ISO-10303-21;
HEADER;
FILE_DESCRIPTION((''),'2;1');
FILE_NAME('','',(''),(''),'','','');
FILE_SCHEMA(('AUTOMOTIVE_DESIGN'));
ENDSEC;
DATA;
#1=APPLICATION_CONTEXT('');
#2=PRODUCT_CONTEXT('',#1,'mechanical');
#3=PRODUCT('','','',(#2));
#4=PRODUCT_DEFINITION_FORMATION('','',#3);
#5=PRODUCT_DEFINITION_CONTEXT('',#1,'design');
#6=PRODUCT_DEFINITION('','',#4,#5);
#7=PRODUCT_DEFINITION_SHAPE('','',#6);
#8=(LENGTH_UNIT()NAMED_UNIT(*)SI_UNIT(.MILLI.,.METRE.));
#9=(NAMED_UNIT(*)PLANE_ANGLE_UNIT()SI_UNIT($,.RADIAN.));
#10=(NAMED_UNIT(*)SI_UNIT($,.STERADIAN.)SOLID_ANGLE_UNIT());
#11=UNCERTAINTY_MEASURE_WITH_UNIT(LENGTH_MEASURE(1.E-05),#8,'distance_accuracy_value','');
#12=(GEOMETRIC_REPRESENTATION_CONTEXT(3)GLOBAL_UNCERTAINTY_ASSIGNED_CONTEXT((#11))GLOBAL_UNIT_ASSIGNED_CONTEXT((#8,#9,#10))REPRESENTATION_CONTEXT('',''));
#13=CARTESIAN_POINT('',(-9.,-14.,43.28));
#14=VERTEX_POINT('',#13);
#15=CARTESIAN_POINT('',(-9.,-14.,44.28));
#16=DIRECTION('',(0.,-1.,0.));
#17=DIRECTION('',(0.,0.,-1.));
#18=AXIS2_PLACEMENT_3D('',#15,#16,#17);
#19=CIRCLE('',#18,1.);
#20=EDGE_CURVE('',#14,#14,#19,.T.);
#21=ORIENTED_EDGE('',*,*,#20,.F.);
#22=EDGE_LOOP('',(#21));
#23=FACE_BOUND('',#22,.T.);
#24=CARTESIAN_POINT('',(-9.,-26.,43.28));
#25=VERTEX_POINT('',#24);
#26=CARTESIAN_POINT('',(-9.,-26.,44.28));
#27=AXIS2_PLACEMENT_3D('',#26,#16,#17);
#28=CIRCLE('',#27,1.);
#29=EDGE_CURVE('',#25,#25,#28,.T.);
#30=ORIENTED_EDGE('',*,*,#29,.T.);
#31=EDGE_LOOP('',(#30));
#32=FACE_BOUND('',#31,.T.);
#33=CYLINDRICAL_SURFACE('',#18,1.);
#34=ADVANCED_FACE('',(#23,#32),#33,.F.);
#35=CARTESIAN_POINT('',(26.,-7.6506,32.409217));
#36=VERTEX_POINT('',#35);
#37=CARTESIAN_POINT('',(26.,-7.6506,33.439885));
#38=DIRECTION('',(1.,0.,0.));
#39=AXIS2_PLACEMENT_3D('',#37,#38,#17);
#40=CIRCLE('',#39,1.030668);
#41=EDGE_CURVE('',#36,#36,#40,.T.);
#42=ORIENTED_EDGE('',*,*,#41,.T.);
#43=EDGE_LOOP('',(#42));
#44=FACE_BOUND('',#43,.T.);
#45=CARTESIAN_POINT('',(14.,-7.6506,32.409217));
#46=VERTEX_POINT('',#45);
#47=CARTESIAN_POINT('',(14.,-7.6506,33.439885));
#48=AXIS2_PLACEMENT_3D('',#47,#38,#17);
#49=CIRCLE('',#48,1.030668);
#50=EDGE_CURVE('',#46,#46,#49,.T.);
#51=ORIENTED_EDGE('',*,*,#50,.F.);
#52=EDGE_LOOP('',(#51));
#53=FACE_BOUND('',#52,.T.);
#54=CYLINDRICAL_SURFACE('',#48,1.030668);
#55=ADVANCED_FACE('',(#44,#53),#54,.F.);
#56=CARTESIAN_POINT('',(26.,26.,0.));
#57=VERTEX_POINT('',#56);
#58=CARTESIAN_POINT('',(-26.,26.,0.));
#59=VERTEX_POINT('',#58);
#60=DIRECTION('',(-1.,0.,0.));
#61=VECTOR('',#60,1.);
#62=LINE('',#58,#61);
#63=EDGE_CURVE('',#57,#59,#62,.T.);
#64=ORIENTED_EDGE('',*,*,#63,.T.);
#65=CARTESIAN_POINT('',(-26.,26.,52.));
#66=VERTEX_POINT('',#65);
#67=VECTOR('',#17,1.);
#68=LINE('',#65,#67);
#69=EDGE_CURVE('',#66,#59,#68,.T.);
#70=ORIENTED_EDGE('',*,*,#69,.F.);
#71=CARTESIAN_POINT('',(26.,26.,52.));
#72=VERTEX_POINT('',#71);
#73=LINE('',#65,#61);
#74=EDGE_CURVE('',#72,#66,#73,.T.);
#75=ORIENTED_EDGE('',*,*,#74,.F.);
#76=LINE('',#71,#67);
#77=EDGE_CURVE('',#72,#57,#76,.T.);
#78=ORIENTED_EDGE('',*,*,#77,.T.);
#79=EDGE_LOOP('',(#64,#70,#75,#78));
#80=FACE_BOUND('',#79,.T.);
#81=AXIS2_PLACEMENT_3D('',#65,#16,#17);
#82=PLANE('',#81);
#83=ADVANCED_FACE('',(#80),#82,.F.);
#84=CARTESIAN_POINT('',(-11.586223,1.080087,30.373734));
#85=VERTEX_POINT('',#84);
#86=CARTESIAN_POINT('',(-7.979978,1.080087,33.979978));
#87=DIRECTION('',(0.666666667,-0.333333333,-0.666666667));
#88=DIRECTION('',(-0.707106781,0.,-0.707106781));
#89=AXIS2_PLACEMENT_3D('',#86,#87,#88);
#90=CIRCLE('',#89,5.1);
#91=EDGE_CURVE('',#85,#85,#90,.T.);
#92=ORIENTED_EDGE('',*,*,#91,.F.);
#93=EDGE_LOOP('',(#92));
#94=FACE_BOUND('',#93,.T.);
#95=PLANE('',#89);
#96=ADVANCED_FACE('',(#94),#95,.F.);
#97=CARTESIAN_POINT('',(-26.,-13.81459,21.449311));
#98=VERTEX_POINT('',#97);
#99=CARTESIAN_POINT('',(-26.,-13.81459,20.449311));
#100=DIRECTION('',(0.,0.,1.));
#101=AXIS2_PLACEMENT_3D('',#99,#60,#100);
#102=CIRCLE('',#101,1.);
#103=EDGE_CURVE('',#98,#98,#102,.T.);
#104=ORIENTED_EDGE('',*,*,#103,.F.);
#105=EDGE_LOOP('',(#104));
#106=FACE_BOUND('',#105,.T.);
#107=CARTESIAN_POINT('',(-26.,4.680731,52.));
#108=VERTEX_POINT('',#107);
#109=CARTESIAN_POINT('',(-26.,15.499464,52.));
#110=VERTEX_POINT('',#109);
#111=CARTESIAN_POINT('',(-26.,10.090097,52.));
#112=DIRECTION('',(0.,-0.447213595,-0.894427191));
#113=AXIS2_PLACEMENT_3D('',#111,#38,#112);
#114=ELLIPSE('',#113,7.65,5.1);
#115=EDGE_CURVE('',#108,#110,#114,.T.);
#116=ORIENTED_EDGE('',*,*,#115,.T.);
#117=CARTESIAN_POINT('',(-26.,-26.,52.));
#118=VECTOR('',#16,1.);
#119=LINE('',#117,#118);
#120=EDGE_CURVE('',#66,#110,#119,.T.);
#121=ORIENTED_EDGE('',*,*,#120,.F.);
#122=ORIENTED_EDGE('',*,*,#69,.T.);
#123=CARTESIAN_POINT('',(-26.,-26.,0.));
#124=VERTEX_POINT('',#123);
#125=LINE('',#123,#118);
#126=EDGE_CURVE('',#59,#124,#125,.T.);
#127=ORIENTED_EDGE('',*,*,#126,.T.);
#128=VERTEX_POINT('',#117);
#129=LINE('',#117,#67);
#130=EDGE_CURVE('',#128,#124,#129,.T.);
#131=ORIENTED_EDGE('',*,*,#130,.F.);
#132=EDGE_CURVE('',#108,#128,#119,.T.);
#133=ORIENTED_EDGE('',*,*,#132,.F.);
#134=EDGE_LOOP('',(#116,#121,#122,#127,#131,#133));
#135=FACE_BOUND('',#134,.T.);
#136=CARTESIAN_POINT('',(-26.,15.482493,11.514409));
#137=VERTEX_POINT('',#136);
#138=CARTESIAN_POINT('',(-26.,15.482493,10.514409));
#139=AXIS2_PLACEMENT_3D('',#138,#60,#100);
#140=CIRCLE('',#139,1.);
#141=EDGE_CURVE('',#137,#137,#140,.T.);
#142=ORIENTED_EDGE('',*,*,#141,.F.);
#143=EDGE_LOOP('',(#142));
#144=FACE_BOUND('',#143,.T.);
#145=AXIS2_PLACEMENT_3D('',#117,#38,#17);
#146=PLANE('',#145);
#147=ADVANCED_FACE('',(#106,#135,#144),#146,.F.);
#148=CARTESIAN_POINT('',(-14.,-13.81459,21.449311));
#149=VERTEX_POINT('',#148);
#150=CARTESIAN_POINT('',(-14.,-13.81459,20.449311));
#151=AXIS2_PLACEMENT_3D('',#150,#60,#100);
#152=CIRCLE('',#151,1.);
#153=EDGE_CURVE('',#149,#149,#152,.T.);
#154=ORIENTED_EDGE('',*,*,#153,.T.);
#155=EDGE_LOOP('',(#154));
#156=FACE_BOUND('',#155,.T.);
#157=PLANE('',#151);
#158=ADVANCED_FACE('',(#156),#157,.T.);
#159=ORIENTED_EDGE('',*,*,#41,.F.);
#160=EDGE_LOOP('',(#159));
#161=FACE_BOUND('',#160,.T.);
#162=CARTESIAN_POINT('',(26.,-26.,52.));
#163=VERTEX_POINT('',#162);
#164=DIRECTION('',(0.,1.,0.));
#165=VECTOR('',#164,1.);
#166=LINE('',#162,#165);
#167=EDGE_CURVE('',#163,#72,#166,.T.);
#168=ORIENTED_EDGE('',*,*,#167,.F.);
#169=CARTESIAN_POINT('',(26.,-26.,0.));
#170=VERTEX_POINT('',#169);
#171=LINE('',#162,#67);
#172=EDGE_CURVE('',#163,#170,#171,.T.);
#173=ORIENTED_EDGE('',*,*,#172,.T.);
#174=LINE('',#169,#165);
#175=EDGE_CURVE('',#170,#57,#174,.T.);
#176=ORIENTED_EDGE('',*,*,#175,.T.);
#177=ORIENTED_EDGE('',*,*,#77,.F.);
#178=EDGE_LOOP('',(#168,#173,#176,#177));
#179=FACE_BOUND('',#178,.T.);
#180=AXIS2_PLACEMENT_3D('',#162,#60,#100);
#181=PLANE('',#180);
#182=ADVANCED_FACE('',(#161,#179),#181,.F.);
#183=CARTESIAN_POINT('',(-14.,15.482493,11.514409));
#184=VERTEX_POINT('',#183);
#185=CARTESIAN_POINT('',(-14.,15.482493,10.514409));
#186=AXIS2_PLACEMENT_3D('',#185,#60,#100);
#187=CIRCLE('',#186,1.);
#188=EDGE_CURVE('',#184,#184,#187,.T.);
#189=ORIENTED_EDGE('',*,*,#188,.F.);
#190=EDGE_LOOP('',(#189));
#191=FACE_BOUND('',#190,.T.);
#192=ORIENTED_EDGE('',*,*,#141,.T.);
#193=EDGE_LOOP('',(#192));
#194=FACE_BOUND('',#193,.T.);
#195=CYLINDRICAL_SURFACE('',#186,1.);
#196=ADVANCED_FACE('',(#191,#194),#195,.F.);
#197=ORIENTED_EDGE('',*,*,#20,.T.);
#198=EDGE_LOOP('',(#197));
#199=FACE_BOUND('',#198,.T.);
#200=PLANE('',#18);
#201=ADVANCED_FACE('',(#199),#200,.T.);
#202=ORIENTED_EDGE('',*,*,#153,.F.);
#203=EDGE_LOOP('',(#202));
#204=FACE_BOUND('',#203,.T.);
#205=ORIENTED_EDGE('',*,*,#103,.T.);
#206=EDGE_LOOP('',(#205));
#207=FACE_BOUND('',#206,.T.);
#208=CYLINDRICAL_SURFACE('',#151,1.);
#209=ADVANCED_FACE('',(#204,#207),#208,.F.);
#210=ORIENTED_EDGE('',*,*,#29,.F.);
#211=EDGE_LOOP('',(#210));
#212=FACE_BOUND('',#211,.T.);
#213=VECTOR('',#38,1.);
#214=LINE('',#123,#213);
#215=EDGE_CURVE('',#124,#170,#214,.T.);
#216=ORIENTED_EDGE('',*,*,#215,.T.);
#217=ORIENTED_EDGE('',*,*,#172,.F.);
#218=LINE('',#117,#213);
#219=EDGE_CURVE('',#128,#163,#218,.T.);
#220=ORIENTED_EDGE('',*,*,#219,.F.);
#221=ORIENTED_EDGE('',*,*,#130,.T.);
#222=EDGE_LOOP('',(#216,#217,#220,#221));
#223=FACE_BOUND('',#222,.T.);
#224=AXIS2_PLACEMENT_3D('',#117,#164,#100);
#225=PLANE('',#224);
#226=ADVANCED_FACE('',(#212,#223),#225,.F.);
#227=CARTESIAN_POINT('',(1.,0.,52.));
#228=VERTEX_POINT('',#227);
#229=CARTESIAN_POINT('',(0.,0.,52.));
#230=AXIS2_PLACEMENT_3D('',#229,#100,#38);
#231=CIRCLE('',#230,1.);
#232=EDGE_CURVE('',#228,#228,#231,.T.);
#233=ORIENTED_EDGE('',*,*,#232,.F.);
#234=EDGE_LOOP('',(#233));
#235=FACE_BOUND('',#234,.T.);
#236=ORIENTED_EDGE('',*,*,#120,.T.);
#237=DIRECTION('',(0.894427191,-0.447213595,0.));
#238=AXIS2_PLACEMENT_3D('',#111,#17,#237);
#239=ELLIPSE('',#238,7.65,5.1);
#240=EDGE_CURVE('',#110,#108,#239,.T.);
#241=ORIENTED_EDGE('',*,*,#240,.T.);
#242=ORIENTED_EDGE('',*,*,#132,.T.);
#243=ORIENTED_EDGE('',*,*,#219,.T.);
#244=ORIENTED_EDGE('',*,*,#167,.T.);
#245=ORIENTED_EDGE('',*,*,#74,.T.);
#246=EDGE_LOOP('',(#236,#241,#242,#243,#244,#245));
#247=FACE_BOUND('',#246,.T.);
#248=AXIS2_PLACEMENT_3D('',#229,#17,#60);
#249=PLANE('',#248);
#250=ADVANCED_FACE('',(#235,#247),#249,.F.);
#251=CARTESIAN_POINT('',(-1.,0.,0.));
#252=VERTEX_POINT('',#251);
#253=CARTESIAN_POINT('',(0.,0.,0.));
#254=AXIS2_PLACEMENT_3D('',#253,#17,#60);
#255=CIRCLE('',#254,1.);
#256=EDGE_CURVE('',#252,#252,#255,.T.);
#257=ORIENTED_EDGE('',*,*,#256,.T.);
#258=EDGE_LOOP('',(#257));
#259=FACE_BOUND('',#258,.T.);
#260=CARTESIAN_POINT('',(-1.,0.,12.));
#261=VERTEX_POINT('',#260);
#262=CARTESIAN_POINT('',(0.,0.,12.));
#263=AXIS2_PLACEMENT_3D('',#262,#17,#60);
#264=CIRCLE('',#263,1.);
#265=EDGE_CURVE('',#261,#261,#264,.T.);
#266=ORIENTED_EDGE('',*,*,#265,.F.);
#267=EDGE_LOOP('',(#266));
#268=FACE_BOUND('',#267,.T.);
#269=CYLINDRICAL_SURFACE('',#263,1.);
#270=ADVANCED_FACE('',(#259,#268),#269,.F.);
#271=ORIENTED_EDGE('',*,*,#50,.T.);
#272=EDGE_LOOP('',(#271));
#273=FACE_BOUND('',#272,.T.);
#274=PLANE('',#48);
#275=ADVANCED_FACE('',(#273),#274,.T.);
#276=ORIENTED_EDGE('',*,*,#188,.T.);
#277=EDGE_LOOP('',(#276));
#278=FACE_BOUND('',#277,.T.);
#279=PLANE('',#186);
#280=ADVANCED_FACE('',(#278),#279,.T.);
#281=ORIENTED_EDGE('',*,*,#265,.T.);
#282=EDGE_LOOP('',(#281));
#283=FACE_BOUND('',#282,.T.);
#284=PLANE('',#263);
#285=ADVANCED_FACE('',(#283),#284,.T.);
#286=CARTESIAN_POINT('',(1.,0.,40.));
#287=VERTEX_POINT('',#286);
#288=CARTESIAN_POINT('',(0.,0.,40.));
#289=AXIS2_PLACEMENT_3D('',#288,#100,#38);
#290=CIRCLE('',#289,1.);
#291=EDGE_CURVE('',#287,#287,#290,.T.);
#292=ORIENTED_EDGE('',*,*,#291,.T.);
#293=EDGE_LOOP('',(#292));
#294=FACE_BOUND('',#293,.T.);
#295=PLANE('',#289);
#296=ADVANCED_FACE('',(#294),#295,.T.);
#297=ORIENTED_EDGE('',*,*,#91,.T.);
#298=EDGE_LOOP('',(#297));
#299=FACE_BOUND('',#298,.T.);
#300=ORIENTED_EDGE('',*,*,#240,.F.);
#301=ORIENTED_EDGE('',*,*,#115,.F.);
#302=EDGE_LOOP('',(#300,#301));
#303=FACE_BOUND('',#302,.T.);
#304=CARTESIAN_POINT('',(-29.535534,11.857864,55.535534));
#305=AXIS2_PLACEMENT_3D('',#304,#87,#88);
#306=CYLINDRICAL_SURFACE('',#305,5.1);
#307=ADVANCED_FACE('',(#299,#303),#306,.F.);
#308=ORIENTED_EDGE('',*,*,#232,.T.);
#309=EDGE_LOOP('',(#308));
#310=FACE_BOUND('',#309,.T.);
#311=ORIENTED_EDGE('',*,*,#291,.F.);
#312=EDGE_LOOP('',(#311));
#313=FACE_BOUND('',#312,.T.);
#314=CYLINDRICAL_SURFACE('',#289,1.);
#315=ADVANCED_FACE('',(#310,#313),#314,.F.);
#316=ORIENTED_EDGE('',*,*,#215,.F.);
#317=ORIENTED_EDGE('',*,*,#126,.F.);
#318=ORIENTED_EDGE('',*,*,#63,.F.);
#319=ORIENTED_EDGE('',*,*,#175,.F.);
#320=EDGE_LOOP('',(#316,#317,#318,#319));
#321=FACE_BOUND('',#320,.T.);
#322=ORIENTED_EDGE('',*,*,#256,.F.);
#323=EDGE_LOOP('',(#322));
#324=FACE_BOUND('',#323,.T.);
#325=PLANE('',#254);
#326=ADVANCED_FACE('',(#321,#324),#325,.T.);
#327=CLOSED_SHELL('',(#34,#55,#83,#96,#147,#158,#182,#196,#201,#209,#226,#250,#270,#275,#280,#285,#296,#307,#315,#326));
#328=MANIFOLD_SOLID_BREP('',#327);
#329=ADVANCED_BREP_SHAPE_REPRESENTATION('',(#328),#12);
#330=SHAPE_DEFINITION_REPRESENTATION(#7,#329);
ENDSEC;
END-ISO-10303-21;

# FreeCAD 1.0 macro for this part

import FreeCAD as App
import Part
import Sketcher
from FreeCAD import Vector
Q = App.Units.Quantity


def add_polygon(sketch, points):
    """Adds a closed chain of lines whose ends are joined by coincident constraints."""
    first, n = sketch.GeometryCount, len(points)
    for a, b in zip(points, points[1:] + points[:1]):
        sketch.addGeometry(Part.LineSegment(App.Vector(*a, 0), App.Vector(*b, 0)), False)
    for i in range(n):
        sketch.addConstraint(Sketcher.Constraint("Coincident", first + i, 2, first + (i + 1) % n, 1))

doc = App.newDocument("Part")
body = doc.addObject("PartDesign::Body", "Body")

sketch1 = body.newObject("Sketcher::SketchObject", "Sketch")
sketch1.AttachmentSupport = (doc.getObject("XY_Plane"), [""])
sketch1.MapMode = "FlatFace"
add_polygon(sketch1, [(-26, 26), (-26, -26), (26, -26), (26, 26)])
sketch1.addConstraint([
    Sketcher.Constraint("Vertical", 0),
    Sketcher.Constraint("Horizontal", 1),
    Sketcher.Constraint("Vertical", 2),
    Sketcher.Constraint("Horizontal", 3),
    Sketcher.Constraint("Symmetric", 0, 2, 2, 2, -1, 1),
    Sketcher.Constraint("Equal", 3, 0),
    Sketcher.Constraint("DistanceX", 1, 1, 1, 2, Q("52 mm")),
])
pad1 = body.newObject("PartDesign::Pad", "Pad")
pad1.Profile = sketch1
pad1.Length = 52

sketch2 = body.newObject("Sketcher::SketchObject", "Sketch001")
sketch2.Placement = App.Placement(Vector(-18.888889, 9.444444, 18.888889), App.Rotation(Vector(-0.745355992, -0.298142397, -0.596284794), Vector(0, 0.894427191, -0.447213595), Vector(0.666666667, -0.333333333, -0.666666667), "ZXY"))
sketch2.addGeometry(Part.Circle(Vector(-15, -14, 0), Vector(0, 0, 1), 5), False)
sketch2.addConstraint([
    Sketcher.Constraint("Diameter", 0, Q("10.2 mm")),
    Sketcher.Constraint("DistanceX", 0, 3, -1, 1, Q("14.635839 mm")),
    Sketcher.Constraint("DistanceY", 0, 3, -1, 1, Q("14.230249 mm")),
])
pocket1 = body.newObject("PartDesign::Pocket", "Pocket")
pocket1.Profile = sketch2
pocket1.Type = "ThroughAll"

sketch3 = body.newObject("Sketcher::SketchObject", "Sketch002")
sketch3.AttachmentSupport = (doc.getObject("XY_Plane"), [""])
sketch3.MapMode = "FlatFace"
sketch3.AttachmentOffset = App.Placement(Vector(0, 0, 52), App.Rotation())
sketch3.addGeometry(Part.Circle(Vector(0, 0, 0), Vector(0, 0, 1), 1), False)
sketch3.addConstraint([
    Sketcher.Constraint("Coincident", 0, 3, -1, 1),
    Sketcher.Constraint("Diameter", 0, Q("2 mm")),
])
pocket2 = body.newObject("PartDesign::Pocket", "Pocket001")
pocket2.Profile = sketch3
pocket2.Length = 12

sketch4 = body.newObject("Sketcher::SketchObject", "Sketch003")
sketch4.AttachmentSupport = (doc.getObject("XY_Plane"), [""])
sketch4.MapMode = "FlatFace"
sketch4.AttachmentOffset = App.Placement(Vector(0, 0, 12), App.Rotation())
sketch4.addGeometry(Part.Circle(Vector(0, 0, 0), Vector(0, 0, 1), 1), False)
sketch4.addConstraint([
    Sketcher.Constraint("Coincident", 0, 3, -1, 1),
    Sketcher.Constraint("Diameter", 0, Q("2 mm")),
])
pocket3 = body.newObject("PartDesign::Pocket", "Pocket002")
pocket3.Profile = sketch4
pocket3.Length = 12

sketch5 = body.newObject("Sketcher::SketchObject", "Sketch004")
sketch5.AttachmentSupport = (doc.getObject("YZ_Plane"), [""])
sketch5.MapMode = "FlatFace"
sketch5.AttachmentOffset = App.Placement(Vector(0, 0, -26), App.Rotation())
sketch5.addGeometry([
    Part.Circle(Vector(15.5, 10.5, 0), Vector(0, 0, 1), 1),
    Part.Circle(Vector(-13.8, 20.4, 0), Vector(0, 0, 1), 1),
], False)
sketch5.addConstraint([
    Sketcher.Constraint("Equal", 0, 1),
    Sketcher.Constraint("Diameter", 0, Q("2 mm")),
    Sketcher.Constraint("DistanceY", -1, 1, 0, 3, Q("10.514409 mm")),
    Sketcher.Constraint("DistanceX", 1, 3, -1, 1, Q("13.81459 mm")),
    Sketcher.Constraint("DistanceY", -1, 1, 1, 3, Q("20.449311 mm")),
    Sketcher.Constraint("DistanceX", -1, 1, 0, 3, Q("15.482493 mm")),
])
pocket4 = body.newObject("PartDesign::Pocket", "Pocket003")
pocket4.Profile = sketch5
pocket4.Length = 12
pocket4.Reversed = True

sketch6 = body.newObject("Sketcher::SketchObject", "Sketch005")
sketch6.AttachmentSupport = (doc.getObject("YZ_Plane"), [""])
sketch6.MapMode = "FlatFace"
sketch6.AttachmentOffset = App.Placement(Vector(0, 0, 26), App.Rotation())
sketch6.addGeometry(Part.Circle(Vector(-7.7, 33.4, 0), Vector(0, 0, 1), 1), False)
sketch6.addConstraint([
    Sketcher.Constraint("Diameter", 0, Q("2.061336 mm")),
    Sketcher.Constraint("DistanceX", 0, 3, -1, 1, Q("7.6506 mm")),
    Sketcher.Constraint("DistanceY", -1, 1, 0, 3, Q("33.439885 mm")),
])
pocket5 = body.newObject("PartDesign::Pocket", "Pocket004")
pocket5.Profile = sketch6
pocket5.Length = 12

sketch7 = body.newObject("Sketcher::SketchObject", "Sketch006")
sketch7.AttachmentSupport = (doc.getObject("XZ_Plane"), [""])
sketch7.MapMode = "FlatFace"
sketch7.AttachmentOffset = App.Placement(Vector(0, 0, 26), App.Rotation())
sketch7.addGeometry(Part.Circle(Vector(-9, 44.3, 0), Vector(0, 0, 1), 1), False)
sketch7.addConstraint([
    Sketcher.Constraint("Diameter", 0, Q("2 mm")),
    Sketcher.Constraint("DistanceX", 0, 3, -1, 1, Q("9 mm")),
    Sketcher.Constraint("DistanceY", -1, 1, 0, 3, Q("44.28 mm")),
])
pocket6 = body.newObject("PartDesign::Pocket", "Pocket005")
pocket6.Profile = sketch7
pocket6.Length = 12

doc.recompute()
